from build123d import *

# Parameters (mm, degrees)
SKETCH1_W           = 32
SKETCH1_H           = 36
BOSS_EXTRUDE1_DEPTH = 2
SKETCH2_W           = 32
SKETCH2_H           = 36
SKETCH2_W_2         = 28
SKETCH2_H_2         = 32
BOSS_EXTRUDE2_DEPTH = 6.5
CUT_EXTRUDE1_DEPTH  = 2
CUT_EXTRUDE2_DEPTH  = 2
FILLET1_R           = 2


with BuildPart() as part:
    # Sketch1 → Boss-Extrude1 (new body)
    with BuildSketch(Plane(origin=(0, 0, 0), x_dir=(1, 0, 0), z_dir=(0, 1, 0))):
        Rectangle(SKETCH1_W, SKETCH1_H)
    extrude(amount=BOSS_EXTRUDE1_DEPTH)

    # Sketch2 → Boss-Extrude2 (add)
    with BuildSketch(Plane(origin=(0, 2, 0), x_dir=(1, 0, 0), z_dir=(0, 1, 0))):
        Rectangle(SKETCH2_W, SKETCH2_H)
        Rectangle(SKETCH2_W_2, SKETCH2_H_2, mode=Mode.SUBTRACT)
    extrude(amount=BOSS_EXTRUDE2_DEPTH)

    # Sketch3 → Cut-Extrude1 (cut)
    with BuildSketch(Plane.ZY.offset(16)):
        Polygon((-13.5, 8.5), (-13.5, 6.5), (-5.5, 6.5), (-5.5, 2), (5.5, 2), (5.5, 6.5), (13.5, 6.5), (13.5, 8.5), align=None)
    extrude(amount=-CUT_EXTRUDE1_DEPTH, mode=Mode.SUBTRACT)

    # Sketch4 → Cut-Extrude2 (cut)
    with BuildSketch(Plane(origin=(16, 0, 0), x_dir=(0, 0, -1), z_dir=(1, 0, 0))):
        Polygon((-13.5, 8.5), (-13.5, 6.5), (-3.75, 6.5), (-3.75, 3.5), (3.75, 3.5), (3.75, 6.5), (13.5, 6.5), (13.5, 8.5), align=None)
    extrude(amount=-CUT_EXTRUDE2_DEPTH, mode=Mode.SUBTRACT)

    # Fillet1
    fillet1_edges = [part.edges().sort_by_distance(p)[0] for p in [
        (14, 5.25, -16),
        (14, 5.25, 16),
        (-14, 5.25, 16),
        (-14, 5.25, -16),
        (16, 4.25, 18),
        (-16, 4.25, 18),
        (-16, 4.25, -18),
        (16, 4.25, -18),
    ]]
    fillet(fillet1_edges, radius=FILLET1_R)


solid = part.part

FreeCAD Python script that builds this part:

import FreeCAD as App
import Part
import Sketcher

V = App.Vector
Q = App.Units.Quantity


def edges_at(feature, points):
    """Names of the edges that pass closest to the given points."""
    edges = feature.Shape.Edges
    near = lambda p: min(range(len(edges)), key=lambda i: edges[i].distToShape(Part.Vertex(*p))[0])
    return sorted({f"Edge{near(p) + 1}" for p in points})

doc = App.newDocument("Part")
body = doc.addObject("PartDesign::Body", "Body")

# Sketch on XZ plane
sketch1 = body.newObject("Sketcher::SketchObject", "Sketch")
sketch1.AttachmentSupport = (doc.getObject("XZ_Plane"), [""])
sketch1.MapMode = "FlatFace"
sketch1.addGeometry(Part.LineSegment(V(-16, -18, 0), V(-16, 18, 0)), False)
sketch1.addGeometry(Part.LineSegment(V(-16, 18, 0), V(16, 18, 0)), False)
sketch1.addGeometry(Part.LineSegment(V(16, 18, 0), V(16, -18, 0)), False)
sketch1.addGeometry(Part.LineSegment(V(16, -18, 0), V(-16, -18, 0)), False)
sketch1.addConstraint(Sketcher.Constraint("Coincident", 0, 2, 1, 1))
sketch1.addConstraint(Sketcher.Constraint("Coincident", 1, 2, 2, 1))
sketch1.addConstraint(Sketcher.Constraint("Coincident", 2, 2, 3, 1))
sketch1.addConstraint(Sketcher.Constraint("Coincident", 3, 2, 0, 1))
sketch1.addConstraint(Sketcher.Constraint("Vertical", 0))
sketch1.addConstraint(Sketcher.Constraint("Horizontal", 1))
sketch1.addConstraint(Sketcher.Constraint("Vertical", 2))
sketch1.addConstraint(Sketcher.Constraint("Horizontal", 3))
sketch1.addConstraint(Sketcher.Constraint("Symmetric", 0, 2, 2, 2, -1, 1))
sketch1.addConstraint(Sketcher.Constraint("DistanceX", 1, 1, 1, 2, Q("32 mm")))
sketch1.addConstraint(Sketcher.Constraint("DistanceY", 0, 1, 0, 2, Q("36 mm")))
pad1 = body.newObject("PartDesign::Pad", "Pad")
pad1.Profile = sketch1
pad1.Length = 2
pad1.Reversed = True

# Sketch on XZ plane
sketch2 = body.newObject("Sketcher::SketchObject", "Sketch001")
sketch2.AttachmentSupport = (doc.getObject("XZ_Plane"), [""])
sketch2.MapMode = "FlatFace"
sketch2.AttachmentOffset = App.Placement(V(0, 0, -2), App.Rotation())
sketch2.addGeometry(Part.LineSegment(V(-16, -18, 0), V(-16, 18, 0)), False)
sketch2.addGeometry(Part.LineSegment(V(-16, 18, 0), V(16, 18, 0)), False)
sketch2.addGeometry(Part.LineSegment(V(16, 18, 0), V(16, -18, 0)), False)
sketch2.addGeometry(Part.LineSegment(V(16, -18, 0), V(-16, -18, 0)), False)
sketch2.addGeometry(Part.LineSegment(V(14, 16, 0), V(-14, 16, 0)), False)
sketch2.addGeometry(Part.LineSegment(V(-14, 16, 0), V(-14, -16, 0)), False)
sketch2.addGeometry(Part.LineSegment(V(-14, -16, 0), V(14, -16, 0)), False)
sketch2.addGeometry(Part.LineSegment(V(14, -16, 0), V(14, 16, 0)), False)
sketch2.addConstraint(Sketcher.Constraint("Coincident", 0, 2, 1, 1))
sketch2.addConstraint(Sketcher.Constraint("Coincident", 1, 2, 2, 1))
sketch2.addConstraint(Sketcher.Constraint("Coincident", 2, 2, 3, 1))
sketch2.addConstraint(Sketcher.Constraint("Coincident", 3, 2, 0, 1))
sketch2.addConstraint(Sketcher.Constraint("Coincident", 4, 2, 5, 1))
sketch2.addConstraint(Sketcher.Constraint("Coincident", 5, 2, 6, 1))
sketch2.addConstraint(Sketcher.Constraint("Coincident", 6, 2, 7, 1))
sketch2.addConstraint(Sketcher.Constraint("Coincident", 7, 2, 4, 1))
sketch2.addConstraint(Sketcher.Constraint("Vertical", 0))
sketch2.addConstraint(Sketcher.Constraint("Horizontal", 1))
sketch2.addConstraint(Sketcher.Constraint("Vertical", 2))
sketch2.addConstraint(Sketcher.Constraint("Horizontal", 3))
sketch2.addConstraint(Sketcher.Constraint("Horizontal", 4))
sketch2.addConstraint(Sketcher.Constraint("Vertical", 5))
sketch2.addConstraint(Sketcher.Constraint("Horizontal", 6))
sketch2.addConstraint(Sketcher.Constraint("Vertical", 7))
sketch2.addConstraint(Sketcher.Constraint("Symmetric", 0, 2, 2, 2, -1, 1))
sketch2.addConstraint(Sketcher.Constraint("Symmetric", 4, 2, 6, 2, -1, 1))
sketch2.addConstraint(Sketcher.Constraint("Equal", 3, 5))
sketch2.addConstraint(Sketcher.Constraint("DistanceX", 1, 1, 1, 2, Q("32 mm")))
sketch2.addConstraint(Sketcher.Constraint("DistanceX", 4, 2, 4, 1, Q("28 mm")))
sketch2.addConstraint(Sketcher.Constraint("DistanceY", 0, 1, 0, 2, Q("36 mm")))
pad2 = body.newObject("PartDesign::Pad", "Pad001")
pad2.Profile = sketch2
pad2.Length = 6.5
pad2.Reversed = True

# Sketch on YZ plane
sketch3 = body.newObject("Sketcher::SketchObject", "Sketch002")
sketch3.AttachmentSupport = (doc.getObject("YZ_Plane"), [""])
sketch3.MapMode = "FlatFace"
sketch3.AttachmentOffset = App.Placement(V(0, 0, -16), App.Rotation())
sketch3.addGeometry(Part.LineSegment(V(8.5, -13.5, 0), V(6.5, -13.5, 0)), False)
sketch3.addGeometry(Part.LineSegment(V(6.5, -13.5, 0), V(6.5, -5.5, 0)), False)
sketch3.addGeometry(Part.LineSegment(V(6.5, -5.5, 0), V(2, -5.5, 0)), False)
sketch3.addGeometry(Part.LineSegment(V(2, -5.5, 0), V(2, 5.5, 0)), False)
sketch3.addGeometry(Part.LineSegment(V(2, 5.5, 0), V(6.5, 5.5, 0)), False)
sketch3.addGeometry(Part.LineSegment(V(6.5, 5.5, 0), V(6.5, 13.5, 0)), False)
sketch3.addGeometry(Part.LineSegment(V(6.5, 13.5, 0), V(8.5, 13.5, 0)), False)
sketch3.addGeometry(Part.LineSegment(V(8.5, 13.5, 0), V(8.5, -13.5, 0)), False)
sketch3.addConstraint(Sketcher.Constraint("Coincident", 0, 2, 1, 1))
sketch3.addConstraint(Sketcher.Constraint("Coincident", 1, 2, 2, 1))
sketch3.addConstraint(Sketcher.Constraint("Coincident", 2, 2, 3, 1))
sketch3.addConstraint(Sketcher.Constraint("Coincident", 3, 2, 4, 1))
sketch3.addConstraint(Sketcher.Constraint("Coincident", 4, 2, 5, 1))
sketch3.addConstraint(Sketcher.Constraint("Coincident", 5, 2, 6, 1))
sketch3.addConstraint(Sketcher.Constraint("Coincident", 6, 2, 7, 1))
sketch3.addConstraint(Sketcher.Constraint("Coincident", 7, 2, 0, 1))
sketch3.addConstraint(Sketcher.Constraint("Horizontal", 0))
sketch3.addConstraint(Sketcher.Constraint("Vertical", 1))
sketch3.addConstraint(Sketcher.Constraint("Horizontal", 2))
sketch3.addConstraint(Sketcher.Constraint("Vertical", 3))
sketch3.addConstraint(Sketcher.Constraint("Horizontal", 4))
sketch3.addConstraint(Sketcher.Constraint("Vertical", 5))
sketch3.addConstraint(Sketcher.Constraint("Horizontal", 6))
sketch3.addConstraint(Sketcher.Constraint("Vertical", 7))
sketch3.addConstraint(Sketcher.Constraint("Symmetric", 1, 2, 4, 2, -1))
sketch3.addConstraint(Sketcher.Constraint("Equal", 1, 5))
sketch3.addConstraint(Sketcher.Constraint("DistanceX", 0, 2, 0, 1, Q("2 mm")))
sketch3.addConstraint(Sketcher.Constraint("DistanceY", 1, 1, 1, 2, Q("8 mm")))
sketch3.addConstraint(Sketcher.Constraint("DistanceY", 3, 1, 3, 2, Q("11 mm")))
sketch3.addConstraint(Sketcher.Constraint("DistanceX", 2, 2, 2, 1, Q("4.5 mm")))
sketch3.addConstraint(Sketcher.Constraint("DistanceX", -1, 1, 2, 2, Q("2 mm")))
pocket1 = body.newObject("PartDesign::Pocket", "Pocket")
pocket1.Profile = sketch3
pocket1.Length = 2
pocket1.Reversed = True

# Sketch on YZ plane
sketch4 = body.newObject("Sketcher::SketchObject", "Sketch003")
sketch4.AttachmentSupport = (doc.getObject("YZ_Plane"), [""])
sketch4.MapMode = "FlatFace"
sketch4.AttachmentOffset = App.Placement(V(0, 0, 16), App.Rotation())
sketch4.addGeometry(Part.LineSegment(V(8.5, 13.5, 0), V(6.5, 13.5, 0)), False)
sketch4.addGeometry(Part.LineSegment(V(6.5, 13.5, 0), V(6.5, 3.8, 0)), False)
sketch4.addGeometry(Part.LineSegment(V(6.5, 3.8, 0), V(3.5, 3.8, 0)), False)
sketch4.addGeometry(Part.LineSegment(V(3.5, 3.8, 0), V(3.5, -3.8, 0)), False)
sketch4.addGeometry(Part.LineSegment(V(3.5, -3.8, 0), V(6.5, -3.8, 0)), False)
sketch4.addGeometry(Part.LineSegment(V(6.5, -3.8, 0), V(6.5, -13.5, 0)), False)
sketch4.addGeometry(Part.LineSegment(V(6.5, -13.5, 0), V(8.5, -13.5, 0)), False)
sketch4.addGeometry(Part.LineSegment(V(8.5, -13.5, 0), V(8.5, 13.5, 0)), False)
sketch4.addConstraint(Sketcher.Constraint("Coincident", 0, 2, 1, 1))
sketch4.addConstraint(Sketcher.Constraint("Coincident", 1, 2, 2, 1))
sketch4.addConstraint(Sketcher.Constraint("Coincident", 2, 2, 3, 1))
sketch4.addConstraint(Sketcher.Constraint("Coincident", 3, 2, 4, 1))
sketch4.addConstraint(Sketcher.Constraint("Coincident", 4, 2, 5, 1))
sketch4.addConstraint(Sketcher.Constraint("Coincident", 5, 2, 6, 1))
sketch4.addConstraint(Sketcher.Constraint("Coincident", 6, 2, 7, 1))
sketch4.addConstraint(Sketcher.Constraint("Coincident", 7, 2, 0, 1))
sketch4.addConstraint(Sketcher.Constraint("Horizontal", 0))
sketch4.addConstraint(Sketcher.Constraint("Vertical", 1))
sketch4.addConstraint(Sketcher.Constraint("Horizontal", 2))
sketch4.addConstraint(Sketcher.Constraint("Vertical", 3))
sketch4.addConstraint(Sketcher.Constraint("Horizontal", 4))
sketch4.addConstraint(Sketcher.Constraint("Vertical", 5))
sketch4.addConstraint(Sketcher.Constraint("Horizontal", 6))
sketch4.addConstraint(Sketcher.Constraint("Vertical", 7))
sketch4.addConstraint(Sketcher.Constraint("Symmetric", 1, 2, 4, 2, -1))
sketch4.addConstraint(Sketcher.Constraint("Equal", 1, 5))
sketch4.addConstraint(Sketcher.Constraint("DistanceX", 0, 2, 0, 1, Q("2 mm")))
sketch4.addConstraint(Sketcher.Constraint("DistanceX", 2, 2, 2, 1, Q("3 mm")))
sketch4.addConstraint(Sketcher.Constraint("DistanceY", 7, 1, 7, 2, Q("27 mm")))
sketch4.addConstraint(Sketcher.Constraint("DistanceY", 3, 2, 3, 1, Q("7.5 mm")))
sketch4.addConstraint(Sketcher.Constraint("DistanceX", -1, 1, 0, 2, Q("6.5 mm")))
pocket2 = body.newObject("PartDesign::Pocket", "Pocket001")
pocket2.Profile = sketch4
pocket2.Length = 2
doc.recompute()

fillet = body.newObject("PartDesign::Fillet", "Fillet")
fillet.Base = (pocket2, edges_at(pocket2, [
    (14, 5.25, -16),
    (14, 5.25, 16),
    (-14, 5.25, 16),
    (-14, 5.25, -16),
    (16, 4.25, 18),
    (-16, 4.25, 18),
    (-16, 4.25, -18),
    (16, 4.25, -18),
]))
fillet.Radius = 2

doc.recompute()
